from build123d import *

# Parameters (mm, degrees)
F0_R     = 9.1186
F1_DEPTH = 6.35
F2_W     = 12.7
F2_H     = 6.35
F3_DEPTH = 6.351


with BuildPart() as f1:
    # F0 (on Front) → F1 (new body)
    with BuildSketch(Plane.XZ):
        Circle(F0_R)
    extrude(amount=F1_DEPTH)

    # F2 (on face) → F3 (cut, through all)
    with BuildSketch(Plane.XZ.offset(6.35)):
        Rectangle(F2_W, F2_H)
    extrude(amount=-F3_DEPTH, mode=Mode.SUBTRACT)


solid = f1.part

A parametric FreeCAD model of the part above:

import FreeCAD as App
import Part
import Sketcher

V = App.Vector
Q = App.Units.Quantity

doc = App.newDocument("Part")
body = doc.addObject("PartDesign::Body", "Body")

# Sketch on XZ plane
sketch1 = body.newObject("Sketcher::SketchObject", "Sketch")
sketch1.AttachmentSupport = (doc.getObject("XZ_Plane"), [""])
sketch1.MapMode = "FlatFace"
sketch1.addGeometry(Part.Circle(V(0, 0, 0), V(0, 0, 1), 9), False)
sketch1.addConstraint([
    Sketcher.Constraint("Coincident", 0, 3, -1, 1),
    Sketcher.Constraint("Diameter", 0, Q("0.718 in")),
])
pad1 = body.newObject("PartDesign::Pad", "Pad")
pad1.Profile = sketch1
pad1.Length = Q("0.25 in")

# Sketch on XZ plane
sketch2 = body.newObject("Sketcher::SketchObject", "Sketch001")
sketch2.AttachmentSupport = (doc.getObject("XZ_Plane"), [""])
sketch2.MapMode = "FlatFace"
sketch2.AttachmentOffset = App.Placement(V(0, 0, 0.25 * 25.4), App.Rotation())
sketch2.addGeometry([
    Part.LineSegment(V(-6, 3, 0), V(-6, -3, 0)),
    Part.LineSegment(V(-6, -3, 0), V(6, -3, 0)),
    Part.LineSegment(V(6, -3, 0), V(6, 3, 0)),
    Part.LineSegment(V(6, 3, 0), V(-6, 3, 0)),
], False)
sketch2.addConstraint([
    Sketcher.Constraint("Coincident", 0, 2, 1, 1),
    Sketcher.Constraint("Coincident", 1, 2, 2, 1),
    Sketcher.Constraint("Coincident", 2, 2, 3, 1),
    Sketcher.Constraint("Coincident", 3, 2, 0, 1),
    Sketcher.Constraint("Vertical", 0),
    Sketcher.Constraint("Horizontal", 1),
    Sketcher.Constraint("Vertical", 2),
    Sketcher.Constraint("Horizontal", 3),
    Sketcher.Constraint("Symmetric", 0, 2, 2, 2, -1, 1),
    Sketcher.Constraint("DistanceX", 1, 1, 1, 2, Q("0.5 in")),
    Sketcher.Constraint("DistanceY", 0, 2, 0, 1, Q("0.25 in")),
])
pocket1 = body.newObject("PartDesign::Pocket", "Pocket")
pocket1.Profile = sketch2
pocket1.Type = "ThroughAll"

doc.recompute()
